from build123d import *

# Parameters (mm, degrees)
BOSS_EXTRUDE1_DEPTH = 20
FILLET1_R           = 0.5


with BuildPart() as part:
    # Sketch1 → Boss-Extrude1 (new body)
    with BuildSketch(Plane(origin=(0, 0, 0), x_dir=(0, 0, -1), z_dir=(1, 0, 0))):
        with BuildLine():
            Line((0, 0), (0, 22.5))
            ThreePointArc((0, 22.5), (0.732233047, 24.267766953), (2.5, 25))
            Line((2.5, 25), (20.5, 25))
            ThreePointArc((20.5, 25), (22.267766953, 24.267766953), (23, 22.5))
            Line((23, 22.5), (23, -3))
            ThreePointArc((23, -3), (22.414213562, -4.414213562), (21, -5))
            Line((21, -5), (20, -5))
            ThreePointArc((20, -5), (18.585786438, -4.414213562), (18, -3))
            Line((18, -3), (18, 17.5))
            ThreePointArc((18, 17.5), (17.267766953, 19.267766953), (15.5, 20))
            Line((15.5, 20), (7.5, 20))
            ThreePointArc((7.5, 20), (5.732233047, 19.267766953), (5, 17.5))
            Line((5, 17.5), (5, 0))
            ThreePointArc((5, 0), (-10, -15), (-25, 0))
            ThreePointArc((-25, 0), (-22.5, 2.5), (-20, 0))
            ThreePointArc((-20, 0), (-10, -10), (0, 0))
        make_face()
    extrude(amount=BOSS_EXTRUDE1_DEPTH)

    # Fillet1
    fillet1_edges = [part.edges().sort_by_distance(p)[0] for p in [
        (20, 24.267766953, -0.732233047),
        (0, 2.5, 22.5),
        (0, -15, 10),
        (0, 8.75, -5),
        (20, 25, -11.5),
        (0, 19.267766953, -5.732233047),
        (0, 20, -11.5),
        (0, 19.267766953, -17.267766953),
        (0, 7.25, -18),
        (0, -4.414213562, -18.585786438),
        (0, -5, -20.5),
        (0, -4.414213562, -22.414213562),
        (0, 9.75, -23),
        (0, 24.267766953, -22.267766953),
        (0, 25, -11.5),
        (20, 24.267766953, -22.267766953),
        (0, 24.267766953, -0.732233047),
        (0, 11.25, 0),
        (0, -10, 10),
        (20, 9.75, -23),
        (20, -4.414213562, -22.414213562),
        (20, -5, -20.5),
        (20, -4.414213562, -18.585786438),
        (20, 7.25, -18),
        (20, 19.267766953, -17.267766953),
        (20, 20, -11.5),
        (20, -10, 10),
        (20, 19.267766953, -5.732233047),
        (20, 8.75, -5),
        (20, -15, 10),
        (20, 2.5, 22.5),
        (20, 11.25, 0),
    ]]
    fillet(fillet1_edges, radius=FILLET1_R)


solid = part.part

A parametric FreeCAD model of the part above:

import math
import FreeCAD as App
import Part
import Sketcher

V = App.Vector


def edges_at(feature, points):
    """Names of the edges that pass closest to the given points."""
    edges = feature.Shape.Edges
    near = lambda p: min(range(len(edges)), key=lambda i: edges[i].distToShape(Part.Vertex(*p))[0])
    return sorted({f"Edge{near(p) + 1}" for p in points})

doc = App.newDocument("Part")
body = doc.addObject("PartDesign::Body", "Body")

sketch1 = body.newObject("Sketcher::SketchObject", "Sketch")
sketch1.AttachmentSupport = (doc.getObject("YZ_Plane"), [""])
sketch1.MapMode = "FlatFace"
sketch1.addGeometry(Part.LineSegment(V(22.5, 0, 0), V(0, 0, 0)), False)
sketch1.addGeometry(Part.ArcOfCircle(Part.Circle(V(0, 10, 0), V(0, 0, 1), 10), math.radians(90), math.radians(270)), False)
sketch1.addGeometry(Part.ArcOfCircle(Part.Circle(V(0, 22.5, 0), V(0, 0, 1), 2.5), math.radians(-90), math.radians(90)), False)
sketch1.addGeometry(Part.ArcOfCircle(Part.Circle(V(0, 10, 0), V(0, 0, 1), 15), math.radians(90), math.radians(270)), False)
sketch1.addGeometry(Part.LineSegment(V(0, -5, 0), V(17.5, -5, 0)), False)
sketch1.addGeometry(Part.ArcOfCircle(Part.Circle(V(17.5, -7.5, 0), V(0, 0, 1), 2.5), math.radians(0), math.radians(90)), False)
sketch1.addGeometry(Part.LineSegment(V(20, -7.5, 0), V(20, -15.5, 0)), False)
sketch1.addGeometry(Part.ArcOfCircle(Part.Circle(V(17.5, -15.5, 0), V(0, 0, 1), 2.5), math.radians(-90), math.radians(0)), False)
sketch1.addGeometry(Part.LineSegment(V(17.5, -18, 0), V(-3, -18, 0)), False)
sketch1.addGeometry(Part.ArcOfCircle(Part.Circle(V(-3, -20, 0), V(0, 0, 1), 2), math.radians(90), math.radians(180)), False)
sketch1.addGeometry(Part.LineSegment(V(-5, -20, 0), V(-5, -21, 0)), False)
sketch1.addGeometry(Part.ArcOfCircle(Part.Circle(V(-3, -21, 0), V(0, 0, 1), 2), math.radians(-180), math.radians(-90)), False)
sketch1.addGeometry(Part.LineSegment(V(-3, -23, 0), V(22.5, -23, 0)), False)
sketch1.addGeometry(Part.ArcOfCircle(Part.Circle(V(22.5, -20.5, 0), V(0, 0, 1), 2.5), math.radians(-90), math.radians(0)), False)
sketch1.addGeometry(Part.LineSegment(V(25, -20.5, 0), V(25, -2.5, 0)), False)
sketch1.addGeometry(Part.ArcOfCircle(Part.Circle(V(22.5, -2.5, 0), V(0, 0, 1), 2.5), math.radians(0), math.radians(90)), False)
sketch1.addConstraint(Sketcher.Constraint("Tangent", 0, 2, 1, 2))
sketch1.addConstraint(Sketcher.Constraint("Tangent", 1, 1, 2, 1))
sketch1.addConstraint(Sketcher.Constraint("Tangent", 2, 2, 3, 1))
sketch1.addConstraint(Sketcher.Constraint("Tangent", 3, 2, 4, 1))
sketch1.addConstraint(Sketcher.Constraint("Tangent", 4, 2, 5, 2))
sketch1.addConstraint(Sketcher.Constraint("Tangent", 5, 1, 6, 1))
sketch1.addConstraint(Sketcher.Constraint("Tangent", 6, 2, 7, 2))
sketch1.addConstraint(Sketcher.Constraint("Tangent", 7, 1, 8, 1))
sketch1.addConstraint(Sketcher.Constraint("Tangent", 8, 2, 9, 1))
sketch1.addConstraint(Sketcher.Constraint("Tangent", 9, 2, 10, 1))
sketch1.addConstraint(Sketcher.Constraint("Tangent", 10, 2, 11, 1))
sketch1.addConstraint(Sketcher.Constraint("Tangent", 11, 2, 12, 1))
sketch1.addConstraint(Sketcher.Constraint("Tangent", 12, 2, 13, 1))
sketch1.addConstraint(Sketcher.Constraint("Tangent", 13, 2, 14, 1))
sketch1.addConstraint(Sketcher.Constraint("Tangent", 14, 2, 15, 1))
sketch1.addConstraint(Sketcher.Constraint("Tangent", 15, 2, 0, 1))
sketch1.addConstraint(Sketcher.Constraint("Horizontal", 0))
sketch1.addConstraint(Sketcher.Constraint("Horizontal", 4))
sketch1.addConstraint(Sketcher.Constraint("Vertical", 6))
sketch1.addConstraint(Sketcher.Constraint("Horizontal", 8))
sketch1.addConstraint(Sketcher.Constraint("Vertical", 10))
sketch1.addConstraint(Sketcher.Constraint("Horizontal", 12))
sketch1.addConstraint(Sketcher.Constraint("Vertical", 14))
sketch1.addConstraint(Sketcher.Constraint("Coincident", 0, 2, -1, 1))
sketch1.addConstraint(Sketcher.Constraint("Coincident", 3, 3, 1, 3))
sketch1.addConstraint(Sketcher.Constraint("Equal", 2, 5))
sketch1.addConstraint(Sketcher.Constraint("Equal", 5, 7))
sketch1.addConstraint(Sketcher.Constraint("Equal", 9, 11))
sketch1.addConstraint(Sketcher.Constraint("Equal", 7, 13))
sketch1.addConstraint(Sketcher.Constraint("Equal", 13, 15))
sketch1.addConstraint(Sketcher.Constraint("PointOnObject", 2, 3, -2))
sketch1.addConstraint(Sketcher.Constraint("Radius", 1, 10.0))
sketch1.addConstraint(Sketcher.Constraint("Radius", 3, 15.0))
sketch1.addConstraint(Sketcher.Constraint("Radius", 9, 2.0))
sketch1.addConstraint(Sketcher.Constraint("DistanceY", 6, 2, 6, 1, 8.0))
sketch1.addConstraint(Sketcher.Constraint("DistanceY", 10, 2, 10, 1, 1.0))
sketch1.addConstraint(Sketcher.Constraint("DistanceX", 0, 2, 0, 1, 22.5))
sketch1.addConstraint(Sketcher.Constraint("DistanceX", 4, 1, 4, 2, 17.5))
sketch1.addConstraint(Sketcher.Constraint("DistanceX", 8, 2, 8, 1, 20.5))
pad1 = body.newObject("PartDesign::Pad", "Pad")
pad1.Profile = sketch1
pad1.Length = 20
doc.recompute()

fillet = body.newObject("PartDesign::Fillet", "Fillet")
fillet.Base = (pad1, edges_at(pad1, [
    (20, 24.268, -0.732),
    (0, 2.5, 22.5),
    (0, -15, 10),
    (0, 8.75, -5),
    (20, 25, -11.5),
    (0, 19.268, -5.732),
    (0, 20, -11.5),
    (0, 19.268, -17.268),
    (0, 7.25, -18),
    (0, -4.414, -18.586),
    (0, -5, -20.5),
    (0, -4.414, -22.414),
    (0, 9.75, -23),
    (0, 24.268, -22.268),
    (0, 25, -11.5),
    (20, 24.268, -22.268),
    (0, 24.268, -0.732),
    (0, 11.25, 0),
    (0, -10, 10),
    (20, 9.75, -23),
    (20, -4.414, -22.414),
    (20, -5, -20.5),
    (20, -4.414, -18.586),
    (20, 7.25, -18),
    (20, 19.268, -17.268),
    (20, 20, -11.5),
    (20, -10, 10),
    (20, 19.268, -5.732),
    (20, 8.75, -5),
    (20, -15, 10),
    (20, 2.5, 22.5),
    (20, 11.25, 0),
]))
fillet.Radius = 0.5

doc.recompute()
